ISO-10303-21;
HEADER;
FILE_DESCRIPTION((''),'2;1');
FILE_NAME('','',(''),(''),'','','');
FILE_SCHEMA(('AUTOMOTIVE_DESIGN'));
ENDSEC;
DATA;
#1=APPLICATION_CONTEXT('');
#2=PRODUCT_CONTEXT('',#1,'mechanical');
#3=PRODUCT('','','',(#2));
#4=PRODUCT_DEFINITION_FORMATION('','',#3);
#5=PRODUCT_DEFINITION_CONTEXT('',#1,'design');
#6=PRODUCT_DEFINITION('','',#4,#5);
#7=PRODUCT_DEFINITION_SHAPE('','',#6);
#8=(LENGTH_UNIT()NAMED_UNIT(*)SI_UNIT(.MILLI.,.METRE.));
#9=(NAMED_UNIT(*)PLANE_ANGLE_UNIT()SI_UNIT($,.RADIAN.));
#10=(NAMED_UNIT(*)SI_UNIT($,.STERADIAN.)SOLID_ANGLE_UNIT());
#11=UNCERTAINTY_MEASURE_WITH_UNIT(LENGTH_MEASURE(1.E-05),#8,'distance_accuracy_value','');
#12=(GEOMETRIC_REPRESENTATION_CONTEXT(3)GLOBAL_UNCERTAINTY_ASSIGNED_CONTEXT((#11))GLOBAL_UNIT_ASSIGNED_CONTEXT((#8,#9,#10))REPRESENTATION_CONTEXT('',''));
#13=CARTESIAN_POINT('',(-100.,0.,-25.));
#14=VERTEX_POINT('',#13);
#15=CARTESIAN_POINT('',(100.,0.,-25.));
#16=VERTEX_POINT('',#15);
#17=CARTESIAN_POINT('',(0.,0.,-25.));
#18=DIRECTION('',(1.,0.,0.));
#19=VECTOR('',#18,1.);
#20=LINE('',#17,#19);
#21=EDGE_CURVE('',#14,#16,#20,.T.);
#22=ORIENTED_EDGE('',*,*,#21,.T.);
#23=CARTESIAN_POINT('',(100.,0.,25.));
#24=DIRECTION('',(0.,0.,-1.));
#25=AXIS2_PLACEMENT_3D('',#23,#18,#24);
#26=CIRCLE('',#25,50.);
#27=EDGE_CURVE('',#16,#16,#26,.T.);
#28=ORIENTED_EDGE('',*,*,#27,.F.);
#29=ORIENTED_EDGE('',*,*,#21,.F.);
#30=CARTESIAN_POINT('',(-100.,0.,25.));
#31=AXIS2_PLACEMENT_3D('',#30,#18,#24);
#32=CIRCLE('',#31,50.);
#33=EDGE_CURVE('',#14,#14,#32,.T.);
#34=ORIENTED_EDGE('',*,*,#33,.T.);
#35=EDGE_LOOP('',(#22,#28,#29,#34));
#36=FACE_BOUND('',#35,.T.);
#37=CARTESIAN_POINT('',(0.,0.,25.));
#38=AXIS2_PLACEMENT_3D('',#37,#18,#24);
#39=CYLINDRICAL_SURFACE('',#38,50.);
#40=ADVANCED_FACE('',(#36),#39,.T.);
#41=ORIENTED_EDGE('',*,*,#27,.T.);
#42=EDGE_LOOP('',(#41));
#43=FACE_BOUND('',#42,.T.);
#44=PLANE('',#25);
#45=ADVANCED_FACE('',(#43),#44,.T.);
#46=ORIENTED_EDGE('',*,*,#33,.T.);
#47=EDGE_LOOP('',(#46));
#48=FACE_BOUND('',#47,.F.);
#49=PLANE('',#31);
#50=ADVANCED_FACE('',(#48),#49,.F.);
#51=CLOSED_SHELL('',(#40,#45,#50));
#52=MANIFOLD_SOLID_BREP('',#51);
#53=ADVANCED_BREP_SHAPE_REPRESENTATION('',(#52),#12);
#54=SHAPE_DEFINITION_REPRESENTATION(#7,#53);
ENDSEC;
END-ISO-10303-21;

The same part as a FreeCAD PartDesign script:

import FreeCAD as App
import Part
import Sketcher
from FreeCAD import Vector
Q = App.Units.Quantity

doc = App.newDocument("Part")
body = doc.addObject("PartDesign::Body", "Body")

sketch1 = body.newObject("Sketcher::SketchObject", "Sketch")
sketch1.AttachmentSupport = (doc.getObject("XZ_Plane"), [""])
sketch1.MapMode = "FlatFace"
sketch1.addGeometry([
    Part.LineSegment(Vector(-100, 25, 0), Vector(-100, -25, 0)),
    Part.LineSegment(Vector(-100, -25, 0), Vector(100, -25, 0)),
    Part.LineSegment(Vector(100, -25, 0), Vector(100, 25, 0)),
    Part.LineSegment(Vector(100, 25, 0), Vector(-100, 25, 0)),
], False)
sketch1.addGeometry(Part.LineSegment(Vector(-100, 25, 0), Vector(100, 25, 0)), True)
sketch1.addConstraint([
    Sketcher.Constraint("Coincident", 0, 2, 1, 1),
    Sketcher.Constraint("Coincident", 1, 2, 2, 1),
    Sketcher.Constraint("Coincident", 2, 2, 3, 1),
    Sketcher.Constraint("Coincident", 3, 2, 0, 1),
    Sketcher.Constraint("Vertical", 0),
    Sketcher.Constraint("Horizontal", 1),
    Sketcher.Constraint("Vertical", 2),
    Sketcher.Constraint("Horizontal", 3),
    Sketcher.Constraint("Horizontal", 4),
    Sketcher.Constraint("Coincident", 4, 1, 3, 2),
    Sketcher.Constraint("Symmetric", 0, 2, 2, 2, -1, 1),
    Sketcher.Constraint("Vertical", 1, 2, 4, 2),
    Sketcher.Constraint("DistanceX", 1, 1, 1, 2, Q("200 mm")),
    Sketcher.Constraint("DistanceY", 0, 2, 0, 1, Q("50 mm")),
])
revolution = body.newObject("PartDesign::Revolution", "Revolution")
revolution.Profile = sketch1
revolution.ReferenceAxis = (sketch1, ["Axis0"])
revolution.Angle = 360

doc.recompute()
